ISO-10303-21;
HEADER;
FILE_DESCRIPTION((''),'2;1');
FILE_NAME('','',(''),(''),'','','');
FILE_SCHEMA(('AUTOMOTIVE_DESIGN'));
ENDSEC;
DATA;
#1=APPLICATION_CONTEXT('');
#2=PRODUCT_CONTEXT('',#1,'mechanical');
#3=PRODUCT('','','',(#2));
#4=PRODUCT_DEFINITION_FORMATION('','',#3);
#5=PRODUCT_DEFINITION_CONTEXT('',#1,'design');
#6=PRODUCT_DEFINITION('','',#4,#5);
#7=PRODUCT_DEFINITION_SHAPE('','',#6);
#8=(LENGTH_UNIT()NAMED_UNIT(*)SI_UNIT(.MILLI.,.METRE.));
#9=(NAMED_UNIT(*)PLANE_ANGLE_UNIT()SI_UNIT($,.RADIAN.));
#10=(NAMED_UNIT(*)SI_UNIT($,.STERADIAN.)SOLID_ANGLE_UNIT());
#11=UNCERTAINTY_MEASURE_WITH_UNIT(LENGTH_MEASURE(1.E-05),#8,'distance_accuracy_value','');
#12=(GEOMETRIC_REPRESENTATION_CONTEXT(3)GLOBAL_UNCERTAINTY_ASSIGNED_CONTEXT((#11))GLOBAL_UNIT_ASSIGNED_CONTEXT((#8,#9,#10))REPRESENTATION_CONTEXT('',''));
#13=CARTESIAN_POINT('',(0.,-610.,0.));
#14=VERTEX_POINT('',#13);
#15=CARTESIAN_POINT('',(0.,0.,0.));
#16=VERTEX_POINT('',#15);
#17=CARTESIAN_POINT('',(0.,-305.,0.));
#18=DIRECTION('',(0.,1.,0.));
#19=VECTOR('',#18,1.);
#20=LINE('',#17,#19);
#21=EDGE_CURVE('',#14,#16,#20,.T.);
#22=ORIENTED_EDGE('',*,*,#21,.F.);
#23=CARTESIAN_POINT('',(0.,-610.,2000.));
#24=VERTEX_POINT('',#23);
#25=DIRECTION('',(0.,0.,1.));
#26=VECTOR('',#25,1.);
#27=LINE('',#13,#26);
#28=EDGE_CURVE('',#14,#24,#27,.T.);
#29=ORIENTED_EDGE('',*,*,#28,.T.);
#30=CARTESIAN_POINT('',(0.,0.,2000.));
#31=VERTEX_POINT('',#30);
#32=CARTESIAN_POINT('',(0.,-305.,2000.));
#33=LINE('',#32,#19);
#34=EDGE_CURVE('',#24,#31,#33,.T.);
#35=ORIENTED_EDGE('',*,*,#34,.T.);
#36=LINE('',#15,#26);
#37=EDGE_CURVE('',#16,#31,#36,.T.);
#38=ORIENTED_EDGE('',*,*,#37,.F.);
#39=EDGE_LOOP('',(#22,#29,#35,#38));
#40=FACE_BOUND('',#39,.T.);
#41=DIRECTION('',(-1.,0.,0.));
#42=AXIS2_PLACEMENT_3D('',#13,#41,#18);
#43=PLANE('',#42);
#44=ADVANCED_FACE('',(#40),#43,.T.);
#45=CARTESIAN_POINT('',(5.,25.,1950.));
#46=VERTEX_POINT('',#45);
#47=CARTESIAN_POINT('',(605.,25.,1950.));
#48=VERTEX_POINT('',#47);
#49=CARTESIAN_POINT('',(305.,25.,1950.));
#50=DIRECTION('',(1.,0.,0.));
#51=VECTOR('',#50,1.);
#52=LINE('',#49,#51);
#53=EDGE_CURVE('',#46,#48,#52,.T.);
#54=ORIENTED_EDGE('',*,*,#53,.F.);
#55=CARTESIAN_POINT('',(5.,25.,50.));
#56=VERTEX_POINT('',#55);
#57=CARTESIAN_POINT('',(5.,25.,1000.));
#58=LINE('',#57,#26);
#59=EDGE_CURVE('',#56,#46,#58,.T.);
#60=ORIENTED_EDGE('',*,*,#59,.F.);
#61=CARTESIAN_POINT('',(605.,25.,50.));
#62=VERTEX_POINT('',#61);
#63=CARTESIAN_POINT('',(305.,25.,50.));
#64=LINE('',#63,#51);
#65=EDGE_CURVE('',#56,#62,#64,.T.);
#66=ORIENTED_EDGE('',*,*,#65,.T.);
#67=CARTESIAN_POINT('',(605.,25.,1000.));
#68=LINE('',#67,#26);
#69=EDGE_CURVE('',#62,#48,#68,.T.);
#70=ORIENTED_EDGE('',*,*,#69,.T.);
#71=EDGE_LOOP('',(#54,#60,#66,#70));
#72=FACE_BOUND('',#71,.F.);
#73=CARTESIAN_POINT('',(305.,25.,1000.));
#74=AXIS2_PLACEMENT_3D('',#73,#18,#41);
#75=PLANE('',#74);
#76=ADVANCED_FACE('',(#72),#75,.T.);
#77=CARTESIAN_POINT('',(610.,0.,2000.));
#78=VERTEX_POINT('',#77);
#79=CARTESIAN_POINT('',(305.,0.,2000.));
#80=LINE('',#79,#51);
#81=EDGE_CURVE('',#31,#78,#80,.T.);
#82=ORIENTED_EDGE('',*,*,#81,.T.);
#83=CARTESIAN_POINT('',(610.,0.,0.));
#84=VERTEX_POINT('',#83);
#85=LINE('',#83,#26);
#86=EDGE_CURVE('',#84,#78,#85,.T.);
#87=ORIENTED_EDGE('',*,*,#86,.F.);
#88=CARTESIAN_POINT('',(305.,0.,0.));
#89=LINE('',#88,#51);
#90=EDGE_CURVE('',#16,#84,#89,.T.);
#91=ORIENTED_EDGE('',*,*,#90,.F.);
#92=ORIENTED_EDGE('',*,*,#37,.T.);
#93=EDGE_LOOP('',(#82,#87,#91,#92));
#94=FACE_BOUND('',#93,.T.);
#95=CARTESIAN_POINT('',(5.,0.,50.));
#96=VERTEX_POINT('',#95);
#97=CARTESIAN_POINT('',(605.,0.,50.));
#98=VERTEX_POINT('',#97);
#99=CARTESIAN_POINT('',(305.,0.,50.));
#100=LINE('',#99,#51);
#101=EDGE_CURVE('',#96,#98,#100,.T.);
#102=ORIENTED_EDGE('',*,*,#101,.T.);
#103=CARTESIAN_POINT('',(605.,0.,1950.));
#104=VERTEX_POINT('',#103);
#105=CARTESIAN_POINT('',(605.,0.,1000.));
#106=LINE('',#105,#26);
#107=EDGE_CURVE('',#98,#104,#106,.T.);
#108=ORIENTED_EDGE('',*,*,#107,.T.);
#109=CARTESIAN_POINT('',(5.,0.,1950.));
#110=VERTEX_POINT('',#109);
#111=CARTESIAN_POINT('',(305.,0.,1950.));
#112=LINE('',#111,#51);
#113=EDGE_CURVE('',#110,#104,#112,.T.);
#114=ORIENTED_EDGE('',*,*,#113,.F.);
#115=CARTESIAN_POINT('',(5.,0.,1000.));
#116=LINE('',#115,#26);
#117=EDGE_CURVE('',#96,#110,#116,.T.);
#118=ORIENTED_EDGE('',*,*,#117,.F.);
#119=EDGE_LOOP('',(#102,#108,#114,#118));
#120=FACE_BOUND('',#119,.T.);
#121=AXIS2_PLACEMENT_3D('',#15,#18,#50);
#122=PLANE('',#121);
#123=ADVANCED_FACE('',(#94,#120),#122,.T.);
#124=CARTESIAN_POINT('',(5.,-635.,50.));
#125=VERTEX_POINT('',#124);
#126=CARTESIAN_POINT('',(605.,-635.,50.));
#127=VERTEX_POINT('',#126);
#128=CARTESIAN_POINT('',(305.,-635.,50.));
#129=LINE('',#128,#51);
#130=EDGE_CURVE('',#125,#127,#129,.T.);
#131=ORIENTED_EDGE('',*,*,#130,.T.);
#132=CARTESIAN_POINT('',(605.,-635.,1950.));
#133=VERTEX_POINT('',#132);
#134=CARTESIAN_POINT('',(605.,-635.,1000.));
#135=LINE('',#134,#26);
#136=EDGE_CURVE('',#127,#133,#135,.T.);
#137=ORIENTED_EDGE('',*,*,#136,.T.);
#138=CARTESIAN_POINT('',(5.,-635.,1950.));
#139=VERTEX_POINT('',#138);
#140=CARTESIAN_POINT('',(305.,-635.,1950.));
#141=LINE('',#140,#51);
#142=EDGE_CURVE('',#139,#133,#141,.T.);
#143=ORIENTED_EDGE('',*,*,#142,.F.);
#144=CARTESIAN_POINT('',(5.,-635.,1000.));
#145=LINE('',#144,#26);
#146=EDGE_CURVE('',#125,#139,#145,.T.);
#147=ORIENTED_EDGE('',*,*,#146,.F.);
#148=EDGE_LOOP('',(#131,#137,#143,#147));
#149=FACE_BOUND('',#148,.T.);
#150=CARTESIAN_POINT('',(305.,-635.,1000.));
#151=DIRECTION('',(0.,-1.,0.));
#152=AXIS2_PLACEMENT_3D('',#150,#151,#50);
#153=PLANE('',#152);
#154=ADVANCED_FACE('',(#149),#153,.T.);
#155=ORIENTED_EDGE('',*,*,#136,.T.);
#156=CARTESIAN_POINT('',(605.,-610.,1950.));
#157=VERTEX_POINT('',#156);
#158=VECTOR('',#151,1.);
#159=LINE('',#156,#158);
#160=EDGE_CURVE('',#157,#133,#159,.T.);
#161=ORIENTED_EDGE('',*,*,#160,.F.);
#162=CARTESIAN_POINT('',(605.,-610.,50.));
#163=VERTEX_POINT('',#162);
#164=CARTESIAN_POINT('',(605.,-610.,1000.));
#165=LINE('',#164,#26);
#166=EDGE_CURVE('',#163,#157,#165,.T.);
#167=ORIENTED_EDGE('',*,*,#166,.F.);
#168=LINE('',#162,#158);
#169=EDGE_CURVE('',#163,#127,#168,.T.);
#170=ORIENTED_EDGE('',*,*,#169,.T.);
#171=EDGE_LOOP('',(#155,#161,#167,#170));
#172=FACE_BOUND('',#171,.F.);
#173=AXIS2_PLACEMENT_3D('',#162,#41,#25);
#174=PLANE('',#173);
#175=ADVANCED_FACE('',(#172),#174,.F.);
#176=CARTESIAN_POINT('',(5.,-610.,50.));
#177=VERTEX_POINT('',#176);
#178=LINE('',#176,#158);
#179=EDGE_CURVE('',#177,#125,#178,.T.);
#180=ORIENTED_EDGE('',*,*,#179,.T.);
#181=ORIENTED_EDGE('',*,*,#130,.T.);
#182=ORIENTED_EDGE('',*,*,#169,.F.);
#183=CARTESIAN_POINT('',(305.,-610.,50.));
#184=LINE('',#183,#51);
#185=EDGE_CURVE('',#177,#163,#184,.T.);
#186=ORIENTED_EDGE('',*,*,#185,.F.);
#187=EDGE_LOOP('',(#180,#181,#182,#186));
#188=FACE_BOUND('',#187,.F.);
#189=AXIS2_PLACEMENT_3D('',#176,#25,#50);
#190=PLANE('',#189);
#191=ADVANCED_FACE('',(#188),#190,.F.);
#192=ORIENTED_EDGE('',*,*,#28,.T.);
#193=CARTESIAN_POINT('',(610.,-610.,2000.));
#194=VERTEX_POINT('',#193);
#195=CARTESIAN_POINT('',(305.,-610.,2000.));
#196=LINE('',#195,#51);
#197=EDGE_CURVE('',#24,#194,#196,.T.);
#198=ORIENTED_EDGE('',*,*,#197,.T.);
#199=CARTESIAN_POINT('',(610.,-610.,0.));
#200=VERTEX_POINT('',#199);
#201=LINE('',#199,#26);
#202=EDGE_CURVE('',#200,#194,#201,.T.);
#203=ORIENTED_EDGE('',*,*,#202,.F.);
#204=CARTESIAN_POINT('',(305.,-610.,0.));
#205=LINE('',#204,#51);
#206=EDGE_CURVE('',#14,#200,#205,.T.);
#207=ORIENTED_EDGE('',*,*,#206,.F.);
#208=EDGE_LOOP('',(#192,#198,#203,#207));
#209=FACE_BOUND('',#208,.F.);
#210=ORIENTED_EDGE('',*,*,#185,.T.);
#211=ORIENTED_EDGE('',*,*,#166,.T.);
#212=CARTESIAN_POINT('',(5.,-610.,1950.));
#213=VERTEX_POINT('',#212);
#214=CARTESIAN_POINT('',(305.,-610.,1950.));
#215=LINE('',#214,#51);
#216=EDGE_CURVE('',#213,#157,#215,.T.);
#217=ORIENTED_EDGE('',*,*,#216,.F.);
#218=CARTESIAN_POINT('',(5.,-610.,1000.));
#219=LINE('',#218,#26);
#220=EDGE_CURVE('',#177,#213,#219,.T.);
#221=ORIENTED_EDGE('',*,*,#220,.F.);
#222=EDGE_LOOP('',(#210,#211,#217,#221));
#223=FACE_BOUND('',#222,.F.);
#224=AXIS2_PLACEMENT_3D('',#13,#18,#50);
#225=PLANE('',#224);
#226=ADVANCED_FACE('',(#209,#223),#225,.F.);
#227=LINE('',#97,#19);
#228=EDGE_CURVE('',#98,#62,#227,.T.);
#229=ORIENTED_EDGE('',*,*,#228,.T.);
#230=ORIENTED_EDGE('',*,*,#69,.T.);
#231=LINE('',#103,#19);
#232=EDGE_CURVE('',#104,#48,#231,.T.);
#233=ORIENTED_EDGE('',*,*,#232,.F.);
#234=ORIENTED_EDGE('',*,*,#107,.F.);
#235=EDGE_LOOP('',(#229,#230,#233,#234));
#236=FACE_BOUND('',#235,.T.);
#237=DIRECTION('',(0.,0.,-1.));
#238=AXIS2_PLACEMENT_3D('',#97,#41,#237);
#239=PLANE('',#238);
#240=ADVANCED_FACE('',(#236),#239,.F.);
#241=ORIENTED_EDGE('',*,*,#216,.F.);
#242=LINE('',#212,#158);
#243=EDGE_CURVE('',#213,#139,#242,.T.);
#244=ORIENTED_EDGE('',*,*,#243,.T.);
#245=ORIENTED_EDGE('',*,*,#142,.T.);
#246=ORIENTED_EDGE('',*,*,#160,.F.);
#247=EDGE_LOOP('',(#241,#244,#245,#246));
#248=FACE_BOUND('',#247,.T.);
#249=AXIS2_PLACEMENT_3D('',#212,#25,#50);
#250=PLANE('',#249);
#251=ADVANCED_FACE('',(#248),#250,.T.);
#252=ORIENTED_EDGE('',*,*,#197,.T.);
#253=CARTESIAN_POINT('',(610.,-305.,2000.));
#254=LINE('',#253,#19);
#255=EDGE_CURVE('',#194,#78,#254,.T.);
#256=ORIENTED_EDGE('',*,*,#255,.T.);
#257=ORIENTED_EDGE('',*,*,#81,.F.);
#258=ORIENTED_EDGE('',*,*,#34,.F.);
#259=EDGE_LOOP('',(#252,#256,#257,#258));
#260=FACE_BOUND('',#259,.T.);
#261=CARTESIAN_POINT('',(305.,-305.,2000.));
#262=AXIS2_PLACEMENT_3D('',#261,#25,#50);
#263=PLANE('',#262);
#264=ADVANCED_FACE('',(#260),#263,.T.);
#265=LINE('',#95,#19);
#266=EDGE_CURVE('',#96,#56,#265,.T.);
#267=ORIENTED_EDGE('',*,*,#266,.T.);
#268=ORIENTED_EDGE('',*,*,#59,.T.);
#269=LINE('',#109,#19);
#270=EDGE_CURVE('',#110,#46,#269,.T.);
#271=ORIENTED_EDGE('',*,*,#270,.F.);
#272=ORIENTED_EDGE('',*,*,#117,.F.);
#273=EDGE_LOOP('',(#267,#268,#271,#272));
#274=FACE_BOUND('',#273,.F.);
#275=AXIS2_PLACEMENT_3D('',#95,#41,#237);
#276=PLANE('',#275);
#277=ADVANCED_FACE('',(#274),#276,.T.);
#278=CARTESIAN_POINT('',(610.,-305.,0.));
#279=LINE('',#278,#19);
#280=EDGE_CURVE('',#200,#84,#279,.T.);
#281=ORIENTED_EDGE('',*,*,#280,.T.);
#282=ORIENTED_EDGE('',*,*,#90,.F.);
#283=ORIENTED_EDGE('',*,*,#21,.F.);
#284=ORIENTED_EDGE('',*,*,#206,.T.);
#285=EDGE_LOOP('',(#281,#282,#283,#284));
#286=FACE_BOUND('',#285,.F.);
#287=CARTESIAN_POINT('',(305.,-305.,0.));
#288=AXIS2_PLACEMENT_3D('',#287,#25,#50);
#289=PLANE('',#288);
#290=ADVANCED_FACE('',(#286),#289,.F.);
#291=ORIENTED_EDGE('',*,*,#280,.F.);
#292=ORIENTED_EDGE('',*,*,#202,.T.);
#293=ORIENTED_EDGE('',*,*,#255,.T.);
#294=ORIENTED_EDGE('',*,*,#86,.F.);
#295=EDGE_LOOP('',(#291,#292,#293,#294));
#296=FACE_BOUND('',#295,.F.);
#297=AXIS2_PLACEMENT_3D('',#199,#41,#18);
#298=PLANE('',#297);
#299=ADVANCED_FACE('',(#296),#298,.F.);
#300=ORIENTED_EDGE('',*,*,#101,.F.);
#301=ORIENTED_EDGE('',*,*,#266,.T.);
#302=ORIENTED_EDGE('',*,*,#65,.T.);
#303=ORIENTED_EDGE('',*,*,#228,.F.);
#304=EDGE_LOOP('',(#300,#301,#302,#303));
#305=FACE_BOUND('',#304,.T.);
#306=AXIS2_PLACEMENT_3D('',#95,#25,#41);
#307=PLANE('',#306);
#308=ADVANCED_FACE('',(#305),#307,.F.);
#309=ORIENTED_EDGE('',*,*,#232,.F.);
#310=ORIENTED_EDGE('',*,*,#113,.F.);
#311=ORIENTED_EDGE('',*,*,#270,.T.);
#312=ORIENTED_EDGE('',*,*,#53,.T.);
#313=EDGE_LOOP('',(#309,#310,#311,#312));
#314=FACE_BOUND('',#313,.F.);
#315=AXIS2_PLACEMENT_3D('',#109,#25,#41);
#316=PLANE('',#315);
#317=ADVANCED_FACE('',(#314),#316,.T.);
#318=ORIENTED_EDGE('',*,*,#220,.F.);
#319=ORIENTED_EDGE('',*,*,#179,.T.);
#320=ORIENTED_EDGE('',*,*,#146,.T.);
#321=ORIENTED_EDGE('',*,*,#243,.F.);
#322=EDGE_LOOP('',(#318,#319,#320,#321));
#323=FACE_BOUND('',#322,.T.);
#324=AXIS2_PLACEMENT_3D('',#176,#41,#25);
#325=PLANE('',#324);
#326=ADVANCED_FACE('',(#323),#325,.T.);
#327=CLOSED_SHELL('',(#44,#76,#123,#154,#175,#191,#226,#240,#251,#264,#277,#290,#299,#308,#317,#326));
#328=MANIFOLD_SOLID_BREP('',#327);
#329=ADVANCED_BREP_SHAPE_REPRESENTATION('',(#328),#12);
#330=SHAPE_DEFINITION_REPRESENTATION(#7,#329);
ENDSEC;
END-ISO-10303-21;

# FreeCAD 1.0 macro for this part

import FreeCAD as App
import Part
import Sketcher
from FreeCAD import Vector
Q = App.Units.Quantity


def add_polygon(sketch, points):
    """Adds a closed chain of lines whose ends are joined by coincident constraints."""
    first, n = sketch.GeometryCount, len(points)
    for a, b in zip(points, points[1:] + points[:1]):
        sketch.addGeometry(Part.LineSegment(App.Vector(*a, 0), App.Vector(*b, 0)), False)
    for i in range(n):
        sketch.addConstraint(Sketcher.Constraint("Coincident", first + i, 2, first + (i + 1) % n, 1))

doc = App.newDocument("Part")
body = doc.addObject("PartDesign::Body", "Body")

sketch1 = doc.addObject("Sketcher::SketchObject", "Sketch")
body.addObject(sketch1)
sketch1.AttachmentSupport = (doc.XY_Plane, [""])
sketch1.MapMode = "FlatFace"
add_polygon(sketch1, [(0, 0), (0, -610), (610, -610), (610, 0)])
sketch1.addConstraint([
    Sketcher.Constraint("Vertical", 0),
    Sketcher.Constraint("Horizontal", 1),
    Sketcher.Constraint("Vertical", 2),
    Sketcher.Constraint("Horizontal", 3),
    Sketcher.Constraint("Coincident", 3, 2, -1, 1),
    Sketcher.Constraint("Equal", 3, 0),
    Sketcher.Constraint("DistanceX", 1, 1, 1, 2, Q("610 mm")),
])
pad1 = doc.addObject("PartDesign::Pad", "Pad")
body.addObject(pad1)
pad1.Profile = sketch1
pad1.Length = 2000

sketch2 = doc.addObject("Sketcher::SketchObject", "Sketch001")
body.addObject(sketch2)
sketch2.AttachmentSupport = (doc.XZ_Plane, [""])
sketch2.MapMode = "FlatFace"
sketch2.AttachmentOffset = App.Placement(Vector(0, 0, 610), App.Rotation())
add_polygon(sketch2, [(5, 1950), (5, 50), (605, 50), (605, 1950)])
sketch2.addConstraint([
    Sketcher.Constraint("Vertical", 0),
    Sketcher.Constraint("Horizontal", 1),
    Sketcher.Constraint("Vertical", 2),
    Sketcher.Constraint("Horizontal", 3),
    Sketcher.Constraint("DistanceX", 1, 1, 1, 2, Q("600 mm")),
    Sketcher.Constraint("DistanceY", 0, 2, 0, 1, Q("1900 mm")),
    Sketcher.Constraint("DistanceX", -1, 1, 0, 2, Q("5 mm")),
    Sketcher.Constraint("DistanceY", -1, 1, 0, 2, Q("50 mm")),
])
pad2 = doc.addObject("PartDesign::Pad", "Pad001")
body.addObject(pad2)
pad2.Profile = sketch2
pad2.Length = 25
body2 = doc.addObject("PartDesign::Body", "Body001")
doc.recompute()

body2.BaseFeature = body
doc.recompute()

mirroring = doc.addObject("Part::Mirroring", "Mirroring")
mirroring.Source = body
mirroring.Base = Vector(0, -305, 2000)
mirroring.Normal = Vector(0, -1, 0)
body3 = doc.addObject("PartDesign::Body", "Body002")
body3.BaseFeature = mirroring
boolean = doc.addObject("PartDesign::Boolean", "Boolean")
body2.addObject(boolean)
boolean.Type = "Fuse"
boolean.addObjects([body3])
doc.recompute()
mirroring.Visibility = False

doc.recompute()
